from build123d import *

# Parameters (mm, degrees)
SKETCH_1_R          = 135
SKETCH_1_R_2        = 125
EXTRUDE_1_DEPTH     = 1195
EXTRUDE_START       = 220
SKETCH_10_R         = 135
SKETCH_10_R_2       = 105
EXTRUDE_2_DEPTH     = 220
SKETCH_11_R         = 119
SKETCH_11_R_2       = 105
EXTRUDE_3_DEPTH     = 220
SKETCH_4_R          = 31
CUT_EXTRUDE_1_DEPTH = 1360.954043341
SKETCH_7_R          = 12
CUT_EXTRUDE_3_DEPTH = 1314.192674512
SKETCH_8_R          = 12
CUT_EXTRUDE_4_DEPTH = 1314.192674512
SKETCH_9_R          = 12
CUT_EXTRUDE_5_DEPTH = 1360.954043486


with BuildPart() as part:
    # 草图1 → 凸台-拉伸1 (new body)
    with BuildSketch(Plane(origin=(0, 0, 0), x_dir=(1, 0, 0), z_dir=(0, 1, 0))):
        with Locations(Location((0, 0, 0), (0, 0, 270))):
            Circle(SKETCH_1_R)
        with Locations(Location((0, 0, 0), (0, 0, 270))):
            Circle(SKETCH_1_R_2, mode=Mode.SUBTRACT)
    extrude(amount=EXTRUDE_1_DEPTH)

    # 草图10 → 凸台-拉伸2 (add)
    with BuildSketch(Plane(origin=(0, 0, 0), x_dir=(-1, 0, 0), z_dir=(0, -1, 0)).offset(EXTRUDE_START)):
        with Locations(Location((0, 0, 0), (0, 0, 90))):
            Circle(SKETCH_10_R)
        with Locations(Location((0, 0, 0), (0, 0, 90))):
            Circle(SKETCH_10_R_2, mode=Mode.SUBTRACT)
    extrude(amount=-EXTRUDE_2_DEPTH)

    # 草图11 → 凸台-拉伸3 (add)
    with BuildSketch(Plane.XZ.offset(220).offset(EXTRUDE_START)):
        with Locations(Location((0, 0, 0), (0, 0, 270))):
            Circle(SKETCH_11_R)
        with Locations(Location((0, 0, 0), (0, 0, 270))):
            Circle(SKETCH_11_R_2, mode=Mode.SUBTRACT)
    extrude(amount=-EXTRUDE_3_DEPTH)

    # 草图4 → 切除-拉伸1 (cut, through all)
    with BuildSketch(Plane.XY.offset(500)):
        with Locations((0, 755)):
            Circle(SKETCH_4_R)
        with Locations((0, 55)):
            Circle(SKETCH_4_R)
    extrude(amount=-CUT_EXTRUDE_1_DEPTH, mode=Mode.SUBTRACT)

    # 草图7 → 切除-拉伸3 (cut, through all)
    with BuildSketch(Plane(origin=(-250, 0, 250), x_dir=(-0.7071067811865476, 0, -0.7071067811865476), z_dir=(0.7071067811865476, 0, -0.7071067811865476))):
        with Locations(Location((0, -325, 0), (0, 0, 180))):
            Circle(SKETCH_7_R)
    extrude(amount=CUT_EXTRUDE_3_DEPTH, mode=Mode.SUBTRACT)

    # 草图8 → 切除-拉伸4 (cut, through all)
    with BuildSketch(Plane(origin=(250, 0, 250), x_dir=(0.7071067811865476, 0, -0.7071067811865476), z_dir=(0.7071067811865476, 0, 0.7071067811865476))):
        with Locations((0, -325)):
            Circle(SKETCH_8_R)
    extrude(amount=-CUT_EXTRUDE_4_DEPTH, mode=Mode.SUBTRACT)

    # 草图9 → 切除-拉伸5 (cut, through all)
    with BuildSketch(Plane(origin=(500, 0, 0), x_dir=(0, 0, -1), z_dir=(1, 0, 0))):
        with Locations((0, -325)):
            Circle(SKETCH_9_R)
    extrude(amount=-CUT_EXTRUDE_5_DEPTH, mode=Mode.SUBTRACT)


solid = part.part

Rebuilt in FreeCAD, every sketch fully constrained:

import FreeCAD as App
import Part
import Sketcher

doc = App.newDocument("Part")
body = doc.addObject("PartDesign::Body", "Body")

sketch1 = doc.addObject("Sketcher::SketchObject", "Sketch")
body.addObject(sketch1)
sketch1.AttachmentSupport = (doc.XZ_Plane, [""])
sketch1.MapMode = "FlatFace"
sketch1.addGeometry([
    Part.Circle(App.Vector(0, 0, 0), App.Vector(0, 0, 1), 135),
    Part.Circle(App.Vector(0, 0, 0), App.Vector(0, 0, 1), 125),
], False)
sketch1.addConstraint([
    Sketcher.Constraint("Coincident", 0, 3, -1, 1),
    Sketcher.Constraint("Coincident", 1, 3, -1, 1),
    Sketcher.Constraint("Diameter", 0, 270.0),
    Sketcher.Constraint("Diameter", 1, 250.0),
])
pad1 = doc.addObject("PartDesign::Pad", "Pad")
body.addObject(pad1)
pad1.Profile = sketch1
pad1.Length = 1195
pad1.Reversed = True

sketch2 = doc.addObject("Sketcher::SketchObject", "Sketch001")
body.addObject(sketch2)
sketch2.AttachmentSupport = (doc.XZ_Plane, [""])
sketch2.MapMode = "FlatFace"
sketch2.AttachmentOffset = App.Placement(App.Vector(0, 0, 220), App.Rotation())
sketch2.addGeometry([
    Part.Circle(App.Vector(0, 0, 0), App.Vector(0, 0, 1), 135),
    Part.Circle(App.Vector(0, 0, 0), App.Vector(0, 0, 1), 105),
], False)
sketch2.addConstraint([
    Sketcher.Constraint("Coincident", 0, 3, -1, 1),
    Sketcher.Constraint("Coincident", 1, 3, -1, 1),
    Sketcher.Constraint("Diameter", 0, 270.0),
    Sketcher.Constraint("Diameter", 1, 210.0),
])
pad2 = doc.addObject("PartDesign::Pad", "Pad001")
body.addObject(pad2)
pad2.Profile = sketch2
pad2.Length = 220
pad2.Reversed = True

sketch3 = doc.addObject("Sketcher::SketchObject", "Sketch002")
body.addObject(sketch3)
sketch3.AttachmentSupport = (doc.XZ_Plane, [""])
sketch3.MapMode = "FlatFace"
sketch3.AttachmentOffset = App.Placement(App.Vector(0, 0, 440), App.Rotation())
sketch3.addGeometry([
    Part.Circle(App.Vector(0, 0, 0), App.Vector(0, 0, 1), 119),
    Part.Circle(App.Vector(0, 0, 0), App.Vector(0, 0, 1), 105),
], False)
sketch3.addConstraint([
    Sketcher.Constraint("Coincident", 0, 3, -1, 1),
    Sketcher.Constraint("Coincident", 1, 3, -1, 1),
    Sketcher.Constraint("Diameter", 0, 238.0),
    Sketcher.Constraint("Diameter", 1, 210.0),
])
pad3 = doc.addObject("PartDesign::Pad", "Pad002")
body.addObject(pad3)
pad3.Profile = sketch3
pad3.Length = 220
pad3.Reversed = True

sketch4 = doc.addObject("Sketcher::SketchObject", "Sketch003")
body.addObject(sketch4)
sketch4.AttachmentSupport = (doc.XY_Plane, [""])
sketch4.MapMode = "FlatFace"
sketch4.AttachmentOffset = App.Placement(App.Vector(0, 0, 500), App.Rotation())
sketch4.addGeometry([
    Part.Circle(App.Vector(0, 755, 0), App.Vector(0, 0, 1), 31),
    Part.Circle(App.Vector(0, 55, 0), App.Vector(0, 0, 1), 31),
], False)
sketch4.addConstraint([
    Sketcher.Constraint("Equal", 0, 1),
    Sketcher.Constraint("PointOnObject", 0, 3, -2),
    Sketcher.Constraint("PointOnObject", 1, 3, -2),
    Sketcher.Constraint("Diameter", 0, 62.0),
    Sketcher.Constraint("DistanceY", -1, 1, 0, 3, 755.0),
    Sketcher.Constraint("DistanceY", -1, 1, 1, 3, 55.0),
])
pocket1 = doc.addObject("PartDesign::Pocket", "Pocket")
body.addObject(pocket1)
pocket1.Profile = sketch4
pocket1.Type = "ThroughAll"

sketch5 = doc.addObject("Sketcher::SketchObject", "Sketch004")
body.addObject(sketch5)
sketch5.Placement = App.Placement(App.Vector(-250, 0, 250), App.Rotation(App.Vector(-0.707106781, 0, -0.707106781), App.Vector(0, 0.999999999, 0), App.Vector(0.707106781, 0, -0.707106781), "ZXY"))
sketch5.addGeometry(Part.Circle(App.Vector(0, -325, 0), App.Vector(0, 0, 1), 12), False)
sketch5.addConstraint([
    Sketcher.Constraint("PointOnObject", 0, 3, -2),
    Sketcher.Constraint("Diameter", 0, 24.0),
    Sketcher.Constraint("DistanceY", 0, 3, -1, 1, 325.0),
])
pocket2 = doc.addObject("PartDesign::Pocket", "Pocket001")
body.addObject(pocket2)
pocket2.Profile = sketch5
pocket2.Type = "ThroughAll"
pocket2.Reversed = True

sketch6 = doc.addObject("Sketcher::SketchObject", "Sketch005")
body.addObject(sketch6)
sketch6.Placement = App.Placement(App.Vector(250, 0, 250), App.Rotation(App.Vector(0.707106781, 0, -0.707106781), App.Vector(0, 0.999999999, 0), App.Vector(0.707106781, 0, 0.707106781), "ZXY"))
sketch6.addGeometry(Part.Circle(App.Vector(0, -325, 0), App.Vector(0, 0, 1), 12), False)
sketch6.addConstraint([
    Sketcher.Constraint("PointOnObject", 0, 3, -2),
    Sketcher.Constraint("Diameter", 0, 24.0),
    Sketcher.Constraint("DistanceY", 0, 3, -1, 1, 325.0),
])
pocket3 = doc.addObject("PartDesign::Pocket", "Pocket002")
body.addObject(pocket3)
pocket3.Profile = sketch6
pocket3.Type = "ThroughAll"

sketch7 = doc.addObject("Sketcher::SketchObject", "Sketch006")
body.addObject(sketch7)
sketch7.AttachmentSupport = (doc.YZ_Plane, [""])
sketch7.MapMode = "FlatFace"
sketch7.AttachmentOffset = App.Placement(App.Vector(0, 0, 500), App.Rotation())
sketch7.addGeometry(Part.Circle(App.Vector(-325, 0, 0), App.Vector(0, 0, 1), 12), False)
sketch7.addConstraint([
    Sketcher.Constraint("PointOnObject", 0, 3, -1),
    Sketcher.Constraint("Diameter", 0, 24.0),
    Sketcher.Constraint("DistanceX", 0, 3, -1, 1, 325.0),
])
pocket4 = doc.addObject("PartDesign::Pocket", "Pocket003")
body.addObject(pocket4)
pocket4.Profile = sketch7
pocket4.Type = "ThroughAll"

doc.recompute()
